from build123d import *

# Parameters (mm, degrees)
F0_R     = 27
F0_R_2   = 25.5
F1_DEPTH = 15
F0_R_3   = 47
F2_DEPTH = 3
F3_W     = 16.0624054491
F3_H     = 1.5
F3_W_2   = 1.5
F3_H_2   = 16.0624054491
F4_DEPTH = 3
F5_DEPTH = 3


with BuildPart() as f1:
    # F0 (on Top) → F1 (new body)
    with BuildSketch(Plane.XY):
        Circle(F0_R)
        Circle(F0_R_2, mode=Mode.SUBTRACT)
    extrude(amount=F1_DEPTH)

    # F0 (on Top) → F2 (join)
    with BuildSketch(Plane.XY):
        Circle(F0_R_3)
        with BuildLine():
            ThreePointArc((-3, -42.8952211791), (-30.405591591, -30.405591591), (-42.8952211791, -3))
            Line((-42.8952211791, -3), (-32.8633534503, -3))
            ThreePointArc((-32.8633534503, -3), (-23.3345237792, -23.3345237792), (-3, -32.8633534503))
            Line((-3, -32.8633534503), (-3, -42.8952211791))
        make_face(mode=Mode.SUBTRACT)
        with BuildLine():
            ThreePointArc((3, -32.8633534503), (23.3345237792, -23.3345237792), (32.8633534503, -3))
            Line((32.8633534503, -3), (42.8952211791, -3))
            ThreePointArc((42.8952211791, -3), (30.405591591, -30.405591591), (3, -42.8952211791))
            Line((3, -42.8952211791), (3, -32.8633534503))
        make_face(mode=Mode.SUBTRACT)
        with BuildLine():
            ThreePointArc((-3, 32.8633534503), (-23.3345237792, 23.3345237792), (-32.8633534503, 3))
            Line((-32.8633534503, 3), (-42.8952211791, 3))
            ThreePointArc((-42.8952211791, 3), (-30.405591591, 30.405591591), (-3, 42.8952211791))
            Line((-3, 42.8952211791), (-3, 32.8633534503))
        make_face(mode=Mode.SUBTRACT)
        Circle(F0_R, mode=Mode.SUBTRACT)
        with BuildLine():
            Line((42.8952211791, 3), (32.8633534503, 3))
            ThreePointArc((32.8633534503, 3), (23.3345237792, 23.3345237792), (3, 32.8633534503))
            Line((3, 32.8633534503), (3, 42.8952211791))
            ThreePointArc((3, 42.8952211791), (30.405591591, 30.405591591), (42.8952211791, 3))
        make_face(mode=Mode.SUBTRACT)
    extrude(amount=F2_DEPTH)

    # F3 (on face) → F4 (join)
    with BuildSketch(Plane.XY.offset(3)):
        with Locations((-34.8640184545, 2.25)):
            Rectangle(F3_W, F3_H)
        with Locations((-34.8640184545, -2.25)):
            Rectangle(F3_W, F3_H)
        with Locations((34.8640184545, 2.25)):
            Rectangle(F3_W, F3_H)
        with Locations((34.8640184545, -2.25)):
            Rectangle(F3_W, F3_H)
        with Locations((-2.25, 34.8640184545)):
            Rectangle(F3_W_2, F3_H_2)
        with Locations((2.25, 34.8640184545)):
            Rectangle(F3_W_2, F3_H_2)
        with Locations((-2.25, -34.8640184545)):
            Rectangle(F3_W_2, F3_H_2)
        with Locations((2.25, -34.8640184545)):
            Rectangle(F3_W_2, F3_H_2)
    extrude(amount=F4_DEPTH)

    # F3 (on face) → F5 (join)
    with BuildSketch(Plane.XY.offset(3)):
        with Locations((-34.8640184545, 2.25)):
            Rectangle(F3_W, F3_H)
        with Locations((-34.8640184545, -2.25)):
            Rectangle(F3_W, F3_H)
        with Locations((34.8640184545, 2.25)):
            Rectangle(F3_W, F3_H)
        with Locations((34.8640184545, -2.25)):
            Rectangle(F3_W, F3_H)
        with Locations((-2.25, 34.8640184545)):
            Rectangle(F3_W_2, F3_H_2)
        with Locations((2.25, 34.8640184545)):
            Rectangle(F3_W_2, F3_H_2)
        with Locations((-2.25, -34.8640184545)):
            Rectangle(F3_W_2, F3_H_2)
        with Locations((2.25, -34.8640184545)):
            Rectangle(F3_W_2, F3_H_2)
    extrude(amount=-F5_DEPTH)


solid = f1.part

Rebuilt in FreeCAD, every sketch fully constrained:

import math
import FreeCAD as App
import Part
import Sketcher
from FreeCAD import Vector
Q = App.Units.Quantity


def add_polygon(sketch, points):
    """Adds a closed chain of lines whose ends are joined by coincident constraints."""
    first, n = sketch.GeometryCount, len(points)
    for a, b in zip(points, points[1:] + points[:1]):
        sketch.addGeometry(Part.LineSegment(App.Vector(*a, 0), App.Vector(*b, 0)), False)
    for i in range(n):
        sketch.addConstraint(Sketcher.Constraint("Coincident", first + i, 2, first + (i + 1) % n, 1))

doc = App.newDocument("Part")
body = doc.addObject("PartDesign::Body", "Body")

# Sketch on XY plane
sketch1 = doc.addObject("Sketcher::SketchObject", "Sketch")
body.addObject(sketch1)
sketch1.AttachmentSupport = (doc.XY_Plane, [""])
sketch1.MapMode = "FlatFace"
sketch1.addGeometry([
    Part.Circle(Vector(0, 0, 0), Vector(0, 0, 1), 27),
    Part.Circle(Vector(0, 0, 0), Vector(0, 0, 1), 26),
], False)
sketch1.addConstraint([
    Sketcher.Constraint("Coincident", 0, 3, -1, 1),
    Sketcher.Constraint("Coincident", 1, 3, -1, 1),
    Sketcher.Constraint("Diameter", 0, Q("54 mm")),
    Sketcher.Constraint("Diameter", 1, Q("51 mm")),
])
pad1 = doc.addObject("PartDesign::Pad", "Pad")
body.addObject(pad1)
pad1.Profile = sketch1
pad1.Length = 15

# Sketch on XY plane
sketch2 = doc.addObject("Sketcher::SketchObject", "Sketch001")
body.addObject(sketch2)
sketch2.AttachmentSupport = (doc.XY_Plane, [""])
sketch2.MapMode = "FlatFace"
sketch2.addGeometry([
    Part.Circle(Vector(0, 0, 0), Vector(0, 0, 1), 47),  # 0
    Part.LineSegment(Vector(-3, -33, 0), Vector(-3, -43, 0)),  # 1
    Part.ArcOfCircle(Part.Circle(Vector(0, 0, 0), Vector(0, 0, 1), 43), math.radians(-176), math.radians(-94)),  # 2
    Part.LineSegment(Vector(-43, -3, 0), Vector(-33, -3, 0)),  # 3
    Part.ArcOfCircle(Part.Circle(Vector(0, 0, 0), Vector(0, 0, 1), 33), math.radians(-175), math.radians(-95)),  # 4
    Part.LineSegment(Vector(3, -43, 0), Vector(3, -33, 0)),  # 5
    Part.ArcOfCircle(Part.Circle(Vector(0, 0, 0), Vector(0, 0, 1), 33), math.radians(-85), math.radians(-5)),  # 6
    Part.LineSegment(Vector(33, -3, 0), Vector(43, -3, 0)),  # 7
    Part.ArcOfCircle(Part.Circle(Vector(0, 0, 0), Vector(0, 0, 1), 43), math.radians(-86), math.radians(-4)),  # 8
    Part.LineSegment(Vector(-3, 43, 0), Vector(-3, 33, 0)),  # 9
    Part.ArcOfCircle(Part.Circle(Vector(0, 0, 0), Vector(0, 0, 1), 33), math.radians(95), math.radians(175)),  # 10
    Part.LineSegment(Vector(-33, 3, 0), Vector(-43, 3, 0)),  # 11
    Part.ArcOfCircle(Part.Circle(Vector(0, 0, 0), Vector(0, 0, 1), 43), math.radians(94), math.radians(176)),  # 12
    Part.Circle(Vector(0, 0, 0), Vector(0, 0, 1), 27),  # 13
    Part.ArcOfCircle(Part.Circle(Vector(0, 0, 0), Vector(0, 0, 1), 43), math.radians(4), math.radians(86)),  # 14
    Part.LineSegment(Vector(43, 3, 0), Vector(33, 3, 0)),  # 15
    Part.ArcOfCircle(Part.Circle(Vector(0, 0, 0), Vector(0, 0, 1), 33), math.radians(5), math.radians(85)),  # 16
    Part.LineSegment(Vector(3, 33, 0), Vector(3, 43, 0)),  # 17
], False)
sketch2.addConstraint([
    Sketcher.Constraint("Coincident", 1, 2, 2, 2),
    Sketcher.Constraint("Coincident", 2, 1, 3, 1),
    Sketcher.Constraint("Coincident", 3, 2, 4, 1),
    Sketcher.Constraint("Coincident", 4, 2, 1, 1),
    Sketcher.Constraint("Coincident", 5, 2, 6, 1),
    Sketcher.Constraint("Coincident", 6, 2, 7, 1),
    Sketcher.Constraint("Coincident", 7, 2, 8, 2),
    Sketcher.Constraint("Coincident", 8, 1, 5, 1),
    Sketcher.Constraint("Coincident", 9, 2, 10, 1),
    Sketcher.Constraint("Coincident", 10, 2, 11, 1),
    Sketcher.Constraint("Coincident", 11, 2, 12, 2),
    Sketcher.Constraint("Coincident", 12, 1, 9, 1),
    Sketcher.Constraint("Coincident", 14, 1, 15, 1),
    Sketcher.Constraint("Coincident", 15, 2, 16, 1),
    Sketcher.Constraint("Coincident", 16, 2, 17, 1),
    Sketcher.Constraint("Coincident", 17, 2, 14, 2),
    Sketcher.Constraint("Vertical", 1),
    Sketcher.Constraint("Horizontal", 3),
    Sketcher.Constraint("Vertical", 5),
    Sketcher.Constraint("Horizontal", 7),
    Sketcher.Constraint("Vertical", 9),
    Sketcher.Constraint("Horizontal", 11),
    Sketcher.Constraint("Horizontal", 15),
    Sketcher.Constraint("Vertical", 17),
    Sketcher.Constraint("Coincident", 0, 3, -1, 1),
    Sketcher.Constraint("Coincident", 2, 3, -1, 1),
    Sketcher.Constraint("Coincident", 4, 3, -1, 1),
    Sketcher.Constraint("Coincident", 6, 3, -1, 1),
    Sketcher.Constraint("Coincident", 8, 3, -1, 1),
    Sketcher.Constraint("Coincident", 10, 3, -1, 1),
    Sketcher.Constraint("Coincident", 12, 3, -1, 1),
    Sketcher.Constraint("Coincident", 13, 3, -1, 1),
    Sketcher.Constraint("Coincident", 14, 3, -1, 1),
    Sketcher.Constraint("Coincident", 16, 3, -1, 1),
    Sketcher.Constraint("Equal", 4, 6),
    Sketcher.Constraint("Equal", 2, 8),
    Sketcher.Constraint("Equal", 6, 10),
    Sketcher.Constraint("Equal", 8, 12),
    Sketcher.Constraint("Equal", 12, 14),
    Sketcher.Constraint("Equal", 10, 16),
    Sketcher.Constraint("Horizontal", 4, 2, 5, 2),
    Sketcher.Constraint("Horizontal", 3, 2, 6, 2),
    Sketcher.Constraint("Horizontal", 11, 2, 14, 1),
    Sketcher.Constraint("Horizontal", 9, 2, 16, 2),
    Sketcher.Constraint("Vertical", 4, 2, 9, 2),
    Sketcher.Constraint("Vertical", 3, 2, 10, 2),
    Sketcher.Constraint("Equal", 15, 1),
    Sketcher.Constraint("Diameter", 0, Q("94 mm")),
    Sketcher.Constraint("Diameter", 13, Q("54 mm")),
    Sketcher.Constraint("Radius", 2, Q("43 mm")),
    Sketcher.Constraint("Radius", 4, Q("33 mm")),
    Sketcher.Constraint("DistanceX", 1, 2, -1, 1, Q("3 mm")),
])
pad2 = doc.addObject("PartDesign::Pad", "Pad001")
body.addObject(pad2)
pad2.Profile = sketch2
pad2.Length = 3

# Sketch on XY plane
sketch3 = doc.addObject("Sketcher::SketchObject", "Sketch002")
body.addObject(sketch3)
sketch3.AttachmentSupport = (doc.XY_Plane, [""])
sketch3.MapMode = "FlatFace"
sketch3.AttachmentOffset = App.Placement(Vector(0, 0, 3), App.Rotation())
add_polygon(sketch3, [(-42.9, 3), (-42.9, 1.5), (-26.8, 1.5), (-26.8, 3)])  # lines 0-3
add_polygon(sketch3, [(-42.9, -1.5), (-42.9, -3), (-26.8, -3), (-26.8, -1.5)])  # lines 4-7
add_polygon(sketch3, [(26.8, 3), (26.8, 1.5), (42.9, 1.5), (42.9, 3)])  # lines 8-11
add_polygon(sketch3, [(26.8, -1.5), (26.8, -3), (42.9, -3), (42.9, -1.5)])  # lines 12-15
add_polygon(sketch3, [(-3, 42.9), (-3, 26.8), (-1.5, 26.8), (-1.5, 42.9)])  # lines 16-19
add_polygon(sketch3, [(1.5, 42.9), (1.5, 26.8), (3, 26.8), (3, 42.9)])  # lines 20-23
add_polygon(sketch3, [(-3, -26.8), (-3, -42.9), (-1.5, -42.9), (-1.5, -26.8)])  # lines 24-27
add_polygon(sketch3, [(1.5, -26.8), (1.5, -42.9), (3, -42.9), (3, -26.8)])  # lines 28-31
sketch3.addConstraint([
    Sketcher.Constraint("Vertical", 0),
    Sketcher.Constraint("Horizontal", 1),
    Sketcher.Constraint("Vertical", 2),
    Sketcher.Constraint("Horizontal", 3),
    Sketcher.Constraint("Vertical", 4),
    Sketcher.Constraint("Horizontal", 5),
    Sketcher.Constraint("Vertical", 6),
    Sketcher.Constraint("Horizontal", 7),
    Sketcher.Constraint("Vertical", 8),
    Sketcher.Constraint("Horizontal", 9),
    Sketcher.Constraint("Vertical", 10),
    Sketcher.Constraint("Horizontal", 11),
    Sketcher.Constraint("Vertical", 12),
    Sketcher.Constraint("Horizontal", 13),
    Sketcher.Constraint("Vertical", 14),
    Sketcher.Constraint("Horizontal", 15),
    Sketcher.Constraint("Vertical", 16),
    Sketcher.Constraint("Horizontal", 17),
    Sketcher.Constraint("Vertical", 18),
    Sketcher.Constraint("Horizontal", 19),
    Sketcher.Constraint("Vertical", 20),
    Sketcher.Constraint("Horizontal", 21),
    Sketcher.Constraint("Vertical", 22),
    Sketcher.Constraint("Horizontal", 23),
    Sketcher.Constraint("Vertical", 24),
    Sketcher.Constraint("Horizontal", 25),
    Sketcher.Constraint("Vertical", 26),
    Sketcher.Constraint("Horizontal", 27),
    Sketcher.Constraint("Vertical", 28),
    Sketcher.Constraint("Horizontal", 29),
    Sketcher.Constraint("Vertical", 30),
    Sketcher.Constraint("Horizontal", 31),
    Sketcher.Constraint("Symmetric", 6, 2, 8, 2, -1, 1),
    Sketcher.Constraint("Symmetric", 4, 2, 10, 2, -1, 1),
    Sketcher.Constraint("Symmetric", 2, 2, 12, 2, -1, 1),
    Sketcher.Constraint("Symmetric", 0, 2, 14, 2, -1, 1),
    Sketcher.Constraint("Symmetric", 22, 2, 24, 2, -1, 1),
    Sketcher.Constraint("Symmetric", 20, 2, 26, 2, -1, 1),
    Sketcher.Constraint("Symmetric", 18, 2, 28, 2, -1, 1),
    Sketcher.Constraint("Symmetric", 16, 2, 30, 2, -1, 1),
    Sketcher.Constraint("Symmetric", 1, 2, 8, 2, -2),
    Sketcher.Constraint("Symmetric", 3, 2, 10, 2, -2),
    Sketcher.Constraint("Symmetric", 17, 2, 20, 2, -2),
    Sketcher.Constraint("Symmetric", 19, 2, 22, 2, -2),
    Sketcher.Constraint("Equal", 31, 0),
    Sketcher.Constraint("Equal", 15, 16),
    Sketcher.Constraint("DistanceX", 17, 1, 17, 2, Q("1.5 mm")),
    Sketcher.Constraint("DistanceY", -1, 1, 2, 2, Q("3 mm")),
    Sketcher.Constraint("DistanceX", 16, 2, -1, 1, Q("3 mm")),
    Sketcher.Constraint("DistanceX", 1, 1, 1, 2, Q("16.062405 mm")),
    Sketcher.Constraint("DistanceX", 0, 2, -1, 1, Q("42.895221 mm")),
    Sketcher.Constraint("DistanceY", -1, 1, 18, 2, Q("42.895221 mm")),
])
pad3 = doc.addObject("PartDesign::Pad", "Pad002")
body.addObject(pad3)
pad3.Profile = sketch3
pad3.Length = 3

# Sketch on XY plane
sketch4 = doc.addObject("Sketcher::SketchObject", "Sketch003")
body.addObject(sketch4)
sketch4.AttachmentSupport = (doc.XY_Plane, [""])
sketch4.MapMode = "FlatFace"
sketch4.AttachmentOffset = App.Placement(Vector(0, 0, 3), App.Rotation())
add_polygon(sketch4, [(-42.9, 3), (-42.9, 1.5), (-26.8, 1.5), (-26.8, 3)])  # lines 0-3
add_polygon(sketch4, [(-42.9, -1.5), (-42.9, -3), (-26.8, -3), (-26.8, -1.5)])  # lines 4-7
add_polygon(sketch4, [(26.8, 3), (26.8, 1.5), (42.9, 1.5), (42.9, 3)])  # lines 8-11
add_polygon(sketch4, [(26.8, -1.5), (26.8, -3), (42.9, -3), (42.9, -1.5)])  # lines 12-15
add_polygon(sketch4, [(-3, 42.9), (-3, 26.8), (-1.5, 26.8), (-1.5, 42.9)])  # lines 16-19
add_polygon(sketch4, [(1.5, 42.9), (1.5, 26.8), (3, 26.8), (3, 42.9)])  # lines 20-23
add_polygon(sketch4, [(-3, -26.8), (-3, -42.9), (-1.5, -42.9), (-1.5, -26.8)])  # lines 24-27
add_polygon(sketch4, [(1.5, -26.8), (1.5, -42.9), (3, -42.9), (3, -26.8)])  # lines 28-31
sketch4.addConstraint([
    Sketcher.Constraint("Vertical", 0),
    Sketcher.Constraint("Horizontal", 1),
    Sketcher.Constraint("Vertical", 2),
    Sketcher.Constraint("Horizontal", 3),
    Sketcher.Constraint("Vertical", 4),
    Sketcher.Constraint("Horizontal", 5),
    Sketcher.Constraint("Vertical", 6),
    Sketcher.Constraint("Horizontal", 7),
    Sketcher.Constraint("Vertical", 8),
    Sketcher.Constraint("Horizontal", 9),
    Sketcher.Constraint("Vertical", 10),
    Sketcher.Constraint("Horizontal", 11),
    Sketcher.Constraint("Vertical", 12),
    Sketcher.Constraint("Horizontal", 13),
    Sketcher.Constraint("Vertical", 14),
    Sketcher.Constraint("Horizontal", 15),
    Sketcher.Constraint("Vertical", 16),
    Sketcher.Constraint("Horizontal", 17),
    Sketcher.Constraint("Vertical", 18),
    Sketcher.Constraint("Horizontal", 19),
    Sketcher.Constraint("Vertical", 20),
    Sketcher.Constraint("Horizontal", 21),
    Sketcher.Constraint("Vertical", 22),
    Sketcher.Constraint("Horizontal", 23),
    Sketcher.Constraint("Vertical", 24),
    Sketcher.Constraint("Horizontal", 25),
    Sketcher.Constraint("Vertical", 26),
    Sketcher.Constraint("Horizontal", 27),
    Sketcher.Constraint("Vertical", 28),
    Sketcher.Constraint("Horizontal", 29),
    Sketcher.Constraint("Vertical", 30),
    Sketcher.Constraint("Horizontal", 31),
    Sketcher.Constraint("Symmetric", 6, 2, 8, 2, -1, 1),
    Sketcher.Constraint("Symmetric", 4, 2, 10, 2, -1, 1),
    Sketcher.Constraint("Symmetric", 2, 2, 12, 2, -1, 1),
    Sketcher.Constraint("Symmetric", 0, 2, 14, 2, -1, 1),
    Sketcher.Constraint("Symmetric", 22, 2, 24, 2, -1, 1),
    Sketcher.Constraint("Symmetric", 20, 2, 26, 2, -1, 1),
    Sketcher.Constraint("Symmetric", 18, 2, 28, 2, -1, 1),
    Sketcher.Constraint("Symmetric", 16, 2, 30, 2, -1, 1),
    Sketcher.Constraint("Symmetric", 1, 2, 8, 2, -2),
    Sketcher.Constraint("Symmetric", 3, 2, 10, 2, -2),
    Sketcher.Constraint("Symmetric", 17, 2, 20, 2, -2),
    Sketcher.Constraint("Symmetric", 19, 2, 22, 2, -2),
    Sketcher.Constraint("Equal", 31, 0),
    Sketcher.Constraint("Equal", 15, 16),
    Sketcher.Constraint("DistanceX", 17, 1, 17, 2, Q("1.5 mm")),
    Sketcher.Constraint("DistanceY", -1, 1, 2, 2, Q("3 mm")),
    Sketcher.Constraint("DistanceX", 16, 2, -1, 1, Q("3 mm")),
    Sketcher.Constraint("DistanceX", 1, 1, 1, 2, Q("16.062405 mm")),
    Sketcher.Constraint("DistanceX", 0, 2, -1, 1, Q("42.895221 mm")),
    Sketcher.Constraint("DistanceY", -1, 1, 18, 2, Q("42.895221 mm")),
])
pad4 = doc.addObject("PartDesign::Pad", "Pad003")
body.addObject(pad4)
pad4.Profile = sketch4
pad4.Length = 3
pad4.Reversed = True

doc.recompute()
